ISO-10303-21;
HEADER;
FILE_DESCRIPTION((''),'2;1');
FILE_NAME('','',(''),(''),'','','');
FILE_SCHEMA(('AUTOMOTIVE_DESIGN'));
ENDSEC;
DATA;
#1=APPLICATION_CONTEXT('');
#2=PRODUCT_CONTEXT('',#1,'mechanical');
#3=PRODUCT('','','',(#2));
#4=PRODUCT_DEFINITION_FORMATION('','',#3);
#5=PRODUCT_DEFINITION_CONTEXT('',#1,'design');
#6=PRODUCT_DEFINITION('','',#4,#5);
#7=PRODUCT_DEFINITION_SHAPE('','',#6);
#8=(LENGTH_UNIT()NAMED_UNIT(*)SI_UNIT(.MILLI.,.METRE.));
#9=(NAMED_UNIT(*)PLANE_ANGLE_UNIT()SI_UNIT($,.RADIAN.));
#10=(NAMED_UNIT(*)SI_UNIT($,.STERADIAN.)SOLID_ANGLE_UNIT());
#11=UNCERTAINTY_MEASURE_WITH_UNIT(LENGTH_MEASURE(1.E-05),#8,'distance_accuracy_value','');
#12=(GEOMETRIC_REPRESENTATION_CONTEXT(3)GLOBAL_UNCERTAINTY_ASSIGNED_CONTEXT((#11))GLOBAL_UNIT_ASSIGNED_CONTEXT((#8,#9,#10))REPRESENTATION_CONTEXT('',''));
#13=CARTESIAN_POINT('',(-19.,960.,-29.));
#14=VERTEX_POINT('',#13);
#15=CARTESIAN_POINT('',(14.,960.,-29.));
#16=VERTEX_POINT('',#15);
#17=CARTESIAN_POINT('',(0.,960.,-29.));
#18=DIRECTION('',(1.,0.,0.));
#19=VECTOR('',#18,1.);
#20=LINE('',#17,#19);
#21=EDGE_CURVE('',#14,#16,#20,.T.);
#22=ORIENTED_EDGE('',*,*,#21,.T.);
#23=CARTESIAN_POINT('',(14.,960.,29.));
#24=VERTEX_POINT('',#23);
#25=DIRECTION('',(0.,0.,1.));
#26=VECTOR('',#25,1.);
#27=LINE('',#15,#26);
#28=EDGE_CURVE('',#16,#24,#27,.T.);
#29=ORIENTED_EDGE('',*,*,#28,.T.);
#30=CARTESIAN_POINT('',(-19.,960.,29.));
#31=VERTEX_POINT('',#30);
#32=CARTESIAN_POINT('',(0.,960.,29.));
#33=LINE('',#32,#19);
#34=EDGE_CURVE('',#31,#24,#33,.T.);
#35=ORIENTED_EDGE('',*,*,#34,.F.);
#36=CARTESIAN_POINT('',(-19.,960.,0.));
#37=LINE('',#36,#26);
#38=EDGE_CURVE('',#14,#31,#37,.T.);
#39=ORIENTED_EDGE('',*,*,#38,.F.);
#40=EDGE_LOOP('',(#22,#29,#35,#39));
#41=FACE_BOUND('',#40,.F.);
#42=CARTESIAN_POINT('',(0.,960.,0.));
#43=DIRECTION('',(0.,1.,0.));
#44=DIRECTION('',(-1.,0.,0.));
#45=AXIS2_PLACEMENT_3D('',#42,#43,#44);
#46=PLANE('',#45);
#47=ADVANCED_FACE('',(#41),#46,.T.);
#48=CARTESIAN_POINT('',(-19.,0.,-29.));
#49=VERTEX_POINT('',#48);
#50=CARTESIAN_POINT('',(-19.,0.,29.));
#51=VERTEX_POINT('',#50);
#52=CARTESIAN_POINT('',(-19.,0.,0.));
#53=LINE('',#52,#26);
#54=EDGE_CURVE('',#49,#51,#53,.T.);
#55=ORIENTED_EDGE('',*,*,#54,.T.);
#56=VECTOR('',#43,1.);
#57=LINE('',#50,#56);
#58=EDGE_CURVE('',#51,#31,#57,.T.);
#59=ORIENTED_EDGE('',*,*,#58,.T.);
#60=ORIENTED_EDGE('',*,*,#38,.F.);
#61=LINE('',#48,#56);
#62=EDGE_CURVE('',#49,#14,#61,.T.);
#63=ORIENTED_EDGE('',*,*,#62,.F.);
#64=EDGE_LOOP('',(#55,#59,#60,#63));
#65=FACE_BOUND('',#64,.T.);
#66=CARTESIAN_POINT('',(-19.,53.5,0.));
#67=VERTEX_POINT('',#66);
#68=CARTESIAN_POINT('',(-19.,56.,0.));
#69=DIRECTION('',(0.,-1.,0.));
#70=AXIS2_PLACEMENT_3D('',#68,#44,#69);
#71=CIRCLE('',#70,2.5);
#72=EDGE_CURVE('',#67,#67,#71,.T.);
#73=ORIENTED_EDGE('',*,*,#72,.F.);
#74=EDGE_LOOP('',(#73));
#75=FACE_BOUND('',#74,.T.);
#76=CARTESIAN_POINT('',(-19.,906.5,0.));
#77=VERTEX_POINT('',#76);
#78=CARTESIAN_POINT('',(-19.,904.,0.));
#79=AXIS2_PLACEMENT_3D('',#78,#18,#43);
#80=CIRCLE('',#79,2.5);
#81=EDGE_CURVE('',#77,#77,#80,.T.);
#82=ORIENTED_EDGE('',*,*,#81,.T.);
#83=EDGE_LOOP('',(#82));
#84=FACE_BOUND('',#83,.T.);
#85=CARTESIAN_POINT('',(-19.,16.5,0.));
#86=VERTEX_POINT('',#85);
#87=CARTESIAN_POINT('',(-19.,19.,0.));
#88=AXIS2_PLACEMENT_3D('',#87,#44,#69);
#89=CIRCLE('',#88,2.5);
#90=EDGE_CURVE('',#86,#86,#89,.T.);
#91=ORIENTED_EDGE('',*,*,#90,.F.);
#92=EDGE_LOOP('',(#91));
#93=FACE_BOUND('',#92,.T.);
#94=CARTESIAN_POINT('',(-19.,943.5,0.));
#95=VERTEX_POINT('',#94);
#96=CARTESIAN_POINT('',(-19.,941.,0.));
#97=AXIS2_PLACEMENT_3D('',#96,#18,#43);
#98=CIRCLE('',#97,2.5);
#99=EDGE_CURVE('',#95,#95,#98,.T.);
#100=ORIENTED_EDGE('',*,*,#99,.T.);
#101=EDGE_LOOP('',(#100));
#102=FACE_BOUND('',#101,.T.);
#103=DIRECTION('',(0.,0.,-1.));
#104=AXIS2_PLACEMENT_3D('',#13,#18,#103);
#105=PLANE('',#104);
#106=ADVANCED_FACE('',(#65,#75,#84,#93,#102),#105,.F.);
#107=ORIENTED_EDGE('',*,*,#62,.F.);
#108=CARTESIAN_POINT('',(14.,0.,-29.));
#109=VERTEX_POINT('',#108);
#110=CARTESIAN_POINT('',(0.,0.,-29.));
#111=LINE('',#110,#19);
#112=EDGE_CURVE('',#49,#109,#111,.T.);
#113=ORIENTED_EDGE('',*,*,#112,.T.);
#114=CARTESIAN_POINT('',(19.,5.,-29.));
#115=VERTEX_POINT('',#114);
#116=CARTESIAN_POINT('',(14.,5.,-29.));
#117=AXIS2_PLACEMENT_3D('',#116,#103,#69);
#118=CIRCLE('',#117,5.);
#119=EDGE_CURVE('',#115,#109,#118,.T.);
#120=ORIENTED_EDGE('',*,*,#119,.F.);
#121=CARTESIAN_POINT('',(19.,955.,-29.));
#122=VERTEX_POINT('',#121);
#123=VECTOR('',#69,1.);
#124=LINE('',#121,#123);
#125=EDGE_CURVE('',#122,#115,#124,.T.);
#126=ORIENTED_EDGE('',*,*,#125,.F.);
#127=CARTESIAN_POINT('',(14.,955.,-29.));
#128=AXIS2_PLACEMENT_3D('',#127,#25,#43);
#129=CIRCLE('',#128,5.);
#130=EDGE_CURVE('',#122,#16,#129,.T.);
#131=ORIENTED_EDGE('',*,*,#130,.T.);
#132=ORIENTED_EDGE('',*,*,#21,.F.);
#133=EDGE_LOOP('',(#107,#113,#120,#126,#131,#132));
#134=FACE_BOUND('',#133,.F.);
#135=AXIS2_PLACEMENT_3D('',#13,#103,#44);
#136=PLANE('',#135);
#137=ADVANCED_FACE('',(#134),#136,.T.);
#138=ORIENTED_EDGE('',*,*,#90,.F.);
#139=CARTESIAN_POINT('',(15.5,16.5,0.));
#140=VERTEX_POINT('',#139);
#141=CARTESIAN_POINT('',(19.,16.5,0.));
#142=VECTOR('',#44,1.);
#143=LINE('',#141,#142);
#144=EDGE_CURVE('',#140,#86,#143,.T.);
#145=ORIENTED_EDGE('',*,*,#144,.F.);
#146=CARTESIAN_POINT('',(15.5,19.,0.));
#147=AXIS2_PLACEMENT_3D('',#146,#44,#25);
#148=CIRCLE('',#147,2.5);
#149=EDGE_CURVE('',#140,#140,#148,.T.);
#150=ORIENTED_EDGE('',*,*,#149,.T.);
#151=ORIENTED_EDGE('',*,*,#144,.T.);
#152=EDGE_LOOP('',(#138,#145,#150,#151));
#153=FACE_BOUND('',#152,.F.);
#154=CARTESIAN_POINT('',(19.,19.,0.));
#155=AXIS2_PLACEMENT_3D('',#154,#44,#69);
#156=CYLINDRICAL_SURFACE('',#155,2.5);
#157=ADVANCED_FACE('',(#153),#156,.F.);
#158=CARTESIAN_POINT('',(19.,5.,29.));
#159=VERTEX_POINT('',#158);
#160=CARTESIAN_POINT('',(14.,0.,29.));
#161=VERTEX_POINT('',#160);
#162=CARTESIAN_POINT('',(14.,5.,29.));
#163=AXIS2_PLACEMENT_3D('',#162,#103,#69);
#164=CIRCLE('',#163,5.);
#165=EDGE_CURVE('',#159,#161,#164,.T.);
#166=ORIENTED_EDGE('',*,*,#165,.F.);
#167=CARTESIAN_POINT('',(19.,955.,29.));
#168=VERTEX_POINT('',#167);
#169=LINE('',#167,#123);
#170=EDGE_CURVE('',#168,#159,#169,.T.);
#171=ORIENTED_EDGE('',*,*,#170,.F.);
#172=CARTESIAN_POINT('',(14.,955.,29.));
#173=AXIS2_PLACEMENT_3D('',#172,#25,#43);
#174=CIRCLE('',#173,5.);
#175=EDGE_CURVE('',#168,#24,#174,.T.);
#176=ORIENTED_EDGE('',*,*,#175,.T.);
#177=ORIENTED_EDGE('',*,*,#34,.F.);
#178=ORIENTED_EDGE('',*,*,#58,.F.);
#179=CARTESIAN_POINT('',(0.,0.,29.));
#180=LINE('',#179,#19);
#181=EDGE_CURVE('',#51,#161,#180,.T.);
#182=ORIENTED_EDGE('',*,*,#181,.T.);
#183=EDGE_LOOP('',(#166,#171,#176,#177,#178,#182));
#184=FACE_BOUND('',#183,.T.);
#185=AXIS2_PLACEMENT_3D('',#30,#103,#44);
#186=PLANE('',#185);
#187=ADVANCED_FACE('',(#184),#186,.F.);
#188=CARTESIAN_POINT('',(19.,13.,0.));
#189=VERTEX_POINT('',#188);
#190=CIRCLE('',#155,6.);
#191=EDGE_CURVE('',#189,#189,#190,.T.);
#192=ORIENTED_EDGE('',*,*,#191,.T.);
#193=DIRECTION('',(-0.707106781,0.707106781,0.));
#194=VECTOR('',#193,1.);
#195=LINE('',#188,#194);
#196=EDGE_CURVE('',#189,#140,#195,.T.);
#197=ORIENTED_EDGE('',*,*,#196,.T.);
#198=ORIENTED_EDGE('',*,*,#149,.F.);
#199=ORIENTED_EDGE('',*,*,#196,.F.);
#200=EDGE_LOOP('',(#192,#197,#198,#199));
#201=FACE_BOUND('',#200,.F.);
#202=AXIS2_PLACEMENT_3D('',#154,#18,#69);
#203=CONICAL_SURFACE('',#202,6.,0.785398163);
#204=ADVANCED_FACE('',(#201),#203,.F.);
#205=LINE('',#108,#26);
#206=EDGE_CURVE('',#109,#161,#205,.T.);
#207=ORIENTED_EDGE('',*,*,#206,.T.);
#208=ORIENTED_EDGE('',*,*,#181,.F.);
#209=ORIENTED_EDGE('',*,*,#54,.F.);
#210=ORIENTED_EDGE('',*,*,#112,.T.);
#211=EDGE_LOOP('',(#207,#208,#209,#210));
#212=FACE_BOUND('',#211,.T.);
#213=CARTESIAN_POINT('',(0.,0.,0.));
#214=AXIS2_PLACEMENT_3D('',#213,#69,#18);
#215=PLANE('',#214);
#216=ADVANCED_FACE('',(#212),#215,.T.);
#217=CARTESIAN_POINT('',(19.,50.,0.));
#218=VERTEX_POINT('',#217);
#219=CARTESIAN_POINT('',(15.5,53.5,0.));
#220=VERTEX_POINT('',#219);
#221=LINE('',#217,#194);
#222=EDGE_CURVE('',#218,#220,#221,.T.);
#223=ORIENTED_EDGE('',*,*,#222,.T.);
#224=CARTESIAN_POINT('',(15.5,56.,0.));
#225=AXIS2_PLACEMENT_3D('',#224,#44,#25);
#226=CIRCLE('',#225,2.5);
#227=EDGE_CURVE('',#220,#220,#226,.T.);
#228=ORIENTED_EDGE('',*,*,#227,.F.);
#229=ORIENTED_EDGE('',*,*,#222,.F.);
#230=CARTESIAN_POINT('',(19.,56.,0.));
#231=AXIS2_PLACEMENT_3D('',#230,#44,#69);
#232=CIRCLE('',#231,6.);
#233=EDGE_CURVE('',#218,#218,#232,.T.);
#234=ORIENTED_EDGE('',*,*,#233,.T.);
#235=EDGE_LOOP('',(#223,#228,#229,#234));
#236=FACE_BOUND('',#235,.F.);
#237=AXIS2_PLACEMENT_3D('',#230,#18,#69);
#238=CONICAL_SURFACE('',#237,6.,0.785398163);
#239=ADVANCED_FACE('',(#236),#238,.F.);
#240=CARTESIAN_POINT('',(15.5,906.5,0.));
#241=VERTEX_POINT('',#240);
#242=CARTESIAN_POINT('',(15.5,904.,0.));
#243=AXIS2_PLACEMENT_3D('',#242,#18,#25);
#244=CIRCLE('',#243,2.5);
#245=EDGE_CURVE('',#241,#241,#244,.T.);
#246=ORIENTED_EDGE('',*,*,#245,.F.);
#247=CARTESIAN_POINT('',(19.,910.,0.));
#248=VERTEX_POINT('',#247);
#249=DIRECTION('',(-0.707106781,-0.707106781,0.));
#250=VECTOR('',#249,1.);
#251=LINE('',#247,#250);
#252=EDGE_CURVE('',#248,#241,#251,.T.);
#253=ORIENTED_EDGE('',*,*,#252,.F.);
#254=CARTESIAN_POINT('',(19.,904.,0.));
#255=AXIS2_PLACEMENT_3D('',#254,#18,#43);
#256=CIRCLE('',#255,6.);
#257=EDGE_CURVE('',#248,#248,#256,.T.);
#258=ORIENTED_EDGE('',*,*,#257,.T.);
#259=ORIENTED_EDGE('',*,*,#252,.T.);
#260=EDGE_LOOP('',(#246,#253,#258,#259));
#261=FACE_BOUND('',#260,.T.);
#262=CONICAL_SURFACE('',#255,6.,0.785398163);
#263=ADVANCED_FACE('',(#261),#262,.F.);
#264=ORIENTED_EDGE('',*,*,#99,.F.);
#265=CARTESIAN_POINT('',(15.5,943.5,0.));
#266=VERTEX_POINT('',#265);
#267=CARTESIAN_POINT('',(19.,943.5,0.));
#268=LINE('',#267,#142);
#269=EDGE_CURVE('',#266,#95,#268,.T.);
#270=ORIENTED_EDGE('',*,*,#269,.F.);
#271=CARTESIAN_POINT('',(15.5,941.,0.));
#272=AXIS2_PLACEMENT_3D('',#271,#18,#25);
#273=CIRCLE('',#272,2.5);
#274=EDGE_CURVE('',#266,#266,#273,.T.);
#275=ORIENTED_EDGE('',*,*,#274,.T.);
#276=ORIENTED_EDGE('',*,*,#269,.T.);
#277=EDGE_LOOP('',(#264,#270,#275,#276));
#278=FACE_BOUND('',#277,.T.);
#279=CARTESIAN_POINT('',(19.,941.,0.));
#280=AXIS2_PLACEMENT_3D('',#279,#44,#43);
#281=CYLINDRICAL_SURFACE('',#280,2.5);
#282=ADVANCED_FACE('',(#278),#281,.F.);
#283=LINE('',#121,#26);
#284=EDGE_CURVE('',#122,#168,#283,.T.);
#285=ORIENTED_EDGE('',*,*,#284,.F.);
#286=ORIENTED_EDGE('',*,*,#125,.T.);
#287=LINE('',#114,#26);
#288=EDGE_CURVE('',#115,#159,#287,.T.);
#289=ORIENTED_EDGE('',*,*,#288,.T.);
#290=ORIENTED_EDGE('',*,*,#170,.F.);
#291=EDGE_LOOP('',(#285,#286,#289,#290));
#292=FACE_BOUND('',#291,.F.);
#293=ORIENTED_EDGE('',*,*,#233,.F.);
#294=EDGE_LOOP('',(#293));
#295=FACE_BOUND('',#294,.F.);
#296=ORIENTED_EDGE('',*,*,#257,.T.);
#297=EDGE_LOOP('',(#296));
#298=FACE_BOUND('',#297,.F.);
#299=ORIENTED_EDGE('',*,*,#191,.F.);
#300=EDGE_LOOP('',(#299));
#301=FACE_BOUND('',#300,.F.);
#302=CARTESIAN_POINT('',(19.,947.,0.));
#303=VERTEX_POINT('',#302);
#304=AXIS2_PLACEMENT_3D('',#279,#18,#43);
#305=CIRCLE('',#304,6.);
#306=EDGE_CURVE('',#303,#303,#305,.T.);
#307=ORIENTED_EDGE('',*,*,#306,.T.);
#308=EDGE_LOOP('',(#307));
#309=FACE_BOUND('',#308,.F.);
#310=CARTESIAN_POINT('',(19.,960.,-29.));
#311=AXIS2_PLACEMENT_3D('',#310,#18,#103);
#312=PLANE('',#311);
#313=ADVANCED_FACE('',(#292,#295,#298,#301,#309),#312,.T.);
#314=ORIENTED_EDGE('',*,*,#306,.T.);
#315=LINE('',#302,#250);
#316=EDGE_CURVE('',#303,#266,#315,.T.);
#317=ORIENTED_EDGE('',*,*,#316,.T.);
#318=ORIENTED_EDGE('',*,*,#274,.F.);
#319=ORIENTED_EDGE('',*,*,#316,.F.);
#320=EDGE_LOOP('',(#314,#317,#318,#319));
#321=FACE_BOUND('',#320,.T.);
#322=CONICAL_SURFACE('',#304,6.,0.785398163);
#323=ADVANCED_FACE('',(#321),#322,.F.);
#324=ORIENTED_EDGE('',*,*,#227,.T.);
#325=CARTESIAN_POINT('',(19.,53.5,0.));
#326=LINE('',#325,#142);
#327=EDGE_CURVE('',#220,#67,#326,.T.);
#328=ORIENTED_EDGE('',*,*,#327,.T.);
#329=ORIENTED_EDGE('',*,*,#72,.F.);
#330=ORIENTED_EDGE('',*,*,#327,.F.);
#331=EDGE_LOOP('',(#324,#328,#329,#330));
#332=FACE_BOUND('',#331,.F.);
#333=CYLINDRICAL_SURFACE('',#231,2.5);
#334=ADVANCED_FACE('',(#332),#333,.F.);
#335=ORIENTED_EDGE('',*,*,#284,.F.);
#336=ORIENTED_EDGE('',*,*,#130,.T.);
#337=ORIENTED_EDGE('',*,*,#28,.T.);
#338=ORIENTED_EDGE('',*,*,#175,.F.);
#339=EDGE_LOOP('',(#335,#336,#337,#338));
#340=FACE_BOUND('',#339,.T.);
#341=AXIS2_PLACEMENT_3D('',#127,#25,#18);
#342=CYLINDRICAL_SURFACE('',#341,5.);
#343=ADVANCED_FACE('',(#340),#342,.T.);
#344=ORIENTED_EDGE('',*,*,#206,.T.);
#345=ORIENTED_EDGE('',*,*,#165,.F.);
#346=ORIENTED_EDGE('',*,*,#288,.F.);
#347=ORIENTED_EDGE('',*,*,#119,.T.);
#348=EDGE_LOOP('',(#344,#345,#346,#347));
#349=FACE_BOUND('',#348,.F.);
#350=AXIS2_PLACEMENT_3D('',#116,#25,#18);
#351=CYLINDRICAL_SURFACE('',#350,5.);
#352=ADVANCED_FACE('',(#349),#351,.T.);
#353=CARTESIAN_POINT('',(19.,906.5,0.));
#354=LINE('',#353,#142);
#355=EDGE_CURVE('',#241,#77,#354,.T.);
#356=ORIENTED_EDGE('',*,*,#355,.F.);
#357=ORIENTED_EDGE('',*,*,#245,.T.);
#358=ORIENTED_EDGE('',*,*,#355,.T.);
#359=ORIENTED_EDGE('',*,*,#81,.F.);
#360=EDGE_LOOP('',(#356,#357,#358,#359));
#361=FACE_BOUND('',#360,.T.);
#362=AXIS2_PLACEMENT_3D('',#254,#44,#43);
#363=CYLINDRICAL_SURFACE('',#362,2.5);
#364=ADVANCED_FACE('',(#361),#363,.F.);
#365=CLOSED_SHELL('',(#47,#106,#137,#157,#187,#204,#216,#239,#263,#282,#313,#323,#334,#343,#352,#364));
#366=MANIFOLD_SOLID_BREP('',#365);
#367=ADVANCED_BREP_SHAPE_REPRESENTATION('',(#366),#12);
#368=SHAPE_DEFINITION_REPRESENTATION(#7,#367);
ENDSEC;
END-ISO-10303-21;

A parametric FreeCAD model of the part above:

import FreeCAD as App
import Part
import Sketcher

V = App.Vector
Q = App.Units.Quantity


def edges_at(feature, points):
    """Names of the edges that pass closest to the given points."""
    edges = feature.Shape.Edges
    near = lambda p: min(range(len(edges)), key=lambda i: edges[i].distToShape(Part.Vertex(*p))[0])
    return sorted({f"Edge{near(p) + 1}" for p in points})

doc = App.newDocument("Part")
params = doc.addObject("Spreadsheet::Sheet", "Params")
for row, (alias, value) in enumerate([
    ("sketch1_width", "38 mm"),
    ("sketch1_height", "58 mm"),
    ("pad1_length", "480 mm"),
    ("fillet_radius", "5 mm"),
    ("sketch2_diameter", "5 mm"),
    ("hole_diameter", "5 mm"),
    ("hole_csink_diameter", "12 mm"),
], start=1):
    params.set(f"A{row}", alias)
    params.set(f"B{row}", "=" + value)
    params.setAlias(f"B{row}", alias)

body = doc.addObject("PartDesign::Body", "Body")

sketch1 = doc.addObject("Sketcher::SketchObject", "Sketch")
body.addObject(sketch1)
sketch1.AttachmentSupport = (doc.XZ_Plane, [""])
sketch1.MapMode = "FlatFace"
sketch1.addGeometry(Part.LineSegment(V(-19, 29, 0), V(-19, -29, 0)), False)
sketch1.addGeometry(Part.LineSegment(V(-19, -29, 0), V(19, -29, 0)), False)
sketch1.addGeometry(Part.LineSegment(V(19, -29, 0), V(19, 29, 0)), False)
sketch1.addGeometry(Part.LineSegment(V(19, 29, 0), V(-19, 29, 0)), False)
sketch1.addConstraint(Sketcher.Constraint("Coincident", 0, 2, 1, 1))
sketch1.addConstraint(Sketcher.Constraint("Coincident", 1, 2, 2, 1))
sketch1.addConstraint(Sketcher.Constraint("Coincident", 2, 2, 3, 1))
sketch1.addConstraint(Sketcher.Constraint("Coincident", 3, 2, 0, 1))
sketch1.addConstraint(Sketcher.Constraint("Vertical", 0))
sketch1.addConstraint(Sketcher.Constraint("Horizontal", 1))
sketch1.addConstraint(Sketcher.Constraint("Vertical", 2))
sketch1.addConstraint(Sketcher.Constraint("Horizontal", 3))
sketch1.addConstraint(Sketcher.Constraint("Symmetric", 0, 2, 2, 2, -1, 1))
sketch1.addConstraint(Sketcher.Constraint("DistanceX", 1, 1, 1, 2, Q("38 mm")))
sketch1.addConstraint(Sketcher.Constraint("DistanceY", 0, 2, 0, 1, Q("58 mm")))
sketch1.setExpression("Constraints[9]", "Params.sketch1_width")
sketch1.setExpression("Constraints[10]", "Params.sketch1_height")
pad1 = doc.addObject("PartDesign::Pad", "Pad")
body.addObject(pad1)
pad1.Profile = sketch1
pad1.setExpression("Length", "Params.pad1_length")
pad1.Reversed = True
doc.recompute()

fillet = doc.addObject("PartDesign::Fillet", "Fillet")
body.addObject(fillet)
fillet.Base = (pad1, edges_at(pad1, [(19, 0, 0)]))
fillet.setExpression("Radius", "Params.fillet_radius")

sketch2 = doc.addObject("Sketcher::SketchObject", "Sketch001")
body.addObject(sketch2)
sketch2.AttachmentSupport = (doc.YZ_Plane, [""])
sketch2.MapMode = "FlatFace"
sketch2.AttachmentOffset = App.Placement(V(0, 0, 19), App.Rotation())
sketch2.addGeometry(Part.Circle(V(19, 0, 0), V(0, 0, 1), 2.5), False)
sketch2.addGeometry(Part.Circle(V(56, 0, 0), V(0, 0, 1), 2.5), False)
sketch2.addConstraint(Sketcher.Constraint("Equal", 0, 1))
sketch2.addConstraint(Sketcher.Constraint("PointOnObject", 0, 3, -1))
sketch2.addConstraint(Sketcher.Constraint("PointOnObject", 1, 3, -1))
sketch2.addConstraint(Sketcher.Constraint("Diameter", 0, Q("5 mm")))
sketch2.addConstraint(Sketcher.Constraint("DistanceX", -1, 1, 0, 3, Q("19 mm")))
sketch2.addConstraint(Sketcher.Constraint("DistanceX", -1, 1, 1, 3, Q("56 mm")))
sketch2.setExpression("Constraints[3]", "Params.sketch2_diameter")
doc.recompute()
hole = doc.addObject("PartDesign::Hole", "Hole")
body.addObject(hole)
hole.Profile = sketch2
hole.ThreadType = "None"
hole.setExpression("Diameter", "Params.hole_diameter")
hole.DepthType = "ThroughAll"
hole.HoleCutType = "Countersink"
hole.setExpression("HoleCutDiameter", "Params.hole_csink_diameter")
hole.HoleCutCountersinkAngle = 90
body2 = doc.addObject("PartDesign::Body", "Body001")
doc.recompute()

body2.BaseFeature = body
doc.recompute()

mirroring = doc.addObject("Part::Mirroring", "Mirroring")
mirroring.Source = body
mirroring.Base = V(0, 480, 0)
mirroring.Normal = V(0, 1, 0)
body3 = doc.addObject("PartDesign::Body", "Body002")
body3.BaseFeature = mirroring
boolean = doc.addObject("PartDesign::Boolean", "Boolean")
body2.addObject(boolean)
boolean.Type = "Fuse"
boolean.addObjects([body3])
doc.recompute()
mirroring.Visibility = False

doc.recompute()
